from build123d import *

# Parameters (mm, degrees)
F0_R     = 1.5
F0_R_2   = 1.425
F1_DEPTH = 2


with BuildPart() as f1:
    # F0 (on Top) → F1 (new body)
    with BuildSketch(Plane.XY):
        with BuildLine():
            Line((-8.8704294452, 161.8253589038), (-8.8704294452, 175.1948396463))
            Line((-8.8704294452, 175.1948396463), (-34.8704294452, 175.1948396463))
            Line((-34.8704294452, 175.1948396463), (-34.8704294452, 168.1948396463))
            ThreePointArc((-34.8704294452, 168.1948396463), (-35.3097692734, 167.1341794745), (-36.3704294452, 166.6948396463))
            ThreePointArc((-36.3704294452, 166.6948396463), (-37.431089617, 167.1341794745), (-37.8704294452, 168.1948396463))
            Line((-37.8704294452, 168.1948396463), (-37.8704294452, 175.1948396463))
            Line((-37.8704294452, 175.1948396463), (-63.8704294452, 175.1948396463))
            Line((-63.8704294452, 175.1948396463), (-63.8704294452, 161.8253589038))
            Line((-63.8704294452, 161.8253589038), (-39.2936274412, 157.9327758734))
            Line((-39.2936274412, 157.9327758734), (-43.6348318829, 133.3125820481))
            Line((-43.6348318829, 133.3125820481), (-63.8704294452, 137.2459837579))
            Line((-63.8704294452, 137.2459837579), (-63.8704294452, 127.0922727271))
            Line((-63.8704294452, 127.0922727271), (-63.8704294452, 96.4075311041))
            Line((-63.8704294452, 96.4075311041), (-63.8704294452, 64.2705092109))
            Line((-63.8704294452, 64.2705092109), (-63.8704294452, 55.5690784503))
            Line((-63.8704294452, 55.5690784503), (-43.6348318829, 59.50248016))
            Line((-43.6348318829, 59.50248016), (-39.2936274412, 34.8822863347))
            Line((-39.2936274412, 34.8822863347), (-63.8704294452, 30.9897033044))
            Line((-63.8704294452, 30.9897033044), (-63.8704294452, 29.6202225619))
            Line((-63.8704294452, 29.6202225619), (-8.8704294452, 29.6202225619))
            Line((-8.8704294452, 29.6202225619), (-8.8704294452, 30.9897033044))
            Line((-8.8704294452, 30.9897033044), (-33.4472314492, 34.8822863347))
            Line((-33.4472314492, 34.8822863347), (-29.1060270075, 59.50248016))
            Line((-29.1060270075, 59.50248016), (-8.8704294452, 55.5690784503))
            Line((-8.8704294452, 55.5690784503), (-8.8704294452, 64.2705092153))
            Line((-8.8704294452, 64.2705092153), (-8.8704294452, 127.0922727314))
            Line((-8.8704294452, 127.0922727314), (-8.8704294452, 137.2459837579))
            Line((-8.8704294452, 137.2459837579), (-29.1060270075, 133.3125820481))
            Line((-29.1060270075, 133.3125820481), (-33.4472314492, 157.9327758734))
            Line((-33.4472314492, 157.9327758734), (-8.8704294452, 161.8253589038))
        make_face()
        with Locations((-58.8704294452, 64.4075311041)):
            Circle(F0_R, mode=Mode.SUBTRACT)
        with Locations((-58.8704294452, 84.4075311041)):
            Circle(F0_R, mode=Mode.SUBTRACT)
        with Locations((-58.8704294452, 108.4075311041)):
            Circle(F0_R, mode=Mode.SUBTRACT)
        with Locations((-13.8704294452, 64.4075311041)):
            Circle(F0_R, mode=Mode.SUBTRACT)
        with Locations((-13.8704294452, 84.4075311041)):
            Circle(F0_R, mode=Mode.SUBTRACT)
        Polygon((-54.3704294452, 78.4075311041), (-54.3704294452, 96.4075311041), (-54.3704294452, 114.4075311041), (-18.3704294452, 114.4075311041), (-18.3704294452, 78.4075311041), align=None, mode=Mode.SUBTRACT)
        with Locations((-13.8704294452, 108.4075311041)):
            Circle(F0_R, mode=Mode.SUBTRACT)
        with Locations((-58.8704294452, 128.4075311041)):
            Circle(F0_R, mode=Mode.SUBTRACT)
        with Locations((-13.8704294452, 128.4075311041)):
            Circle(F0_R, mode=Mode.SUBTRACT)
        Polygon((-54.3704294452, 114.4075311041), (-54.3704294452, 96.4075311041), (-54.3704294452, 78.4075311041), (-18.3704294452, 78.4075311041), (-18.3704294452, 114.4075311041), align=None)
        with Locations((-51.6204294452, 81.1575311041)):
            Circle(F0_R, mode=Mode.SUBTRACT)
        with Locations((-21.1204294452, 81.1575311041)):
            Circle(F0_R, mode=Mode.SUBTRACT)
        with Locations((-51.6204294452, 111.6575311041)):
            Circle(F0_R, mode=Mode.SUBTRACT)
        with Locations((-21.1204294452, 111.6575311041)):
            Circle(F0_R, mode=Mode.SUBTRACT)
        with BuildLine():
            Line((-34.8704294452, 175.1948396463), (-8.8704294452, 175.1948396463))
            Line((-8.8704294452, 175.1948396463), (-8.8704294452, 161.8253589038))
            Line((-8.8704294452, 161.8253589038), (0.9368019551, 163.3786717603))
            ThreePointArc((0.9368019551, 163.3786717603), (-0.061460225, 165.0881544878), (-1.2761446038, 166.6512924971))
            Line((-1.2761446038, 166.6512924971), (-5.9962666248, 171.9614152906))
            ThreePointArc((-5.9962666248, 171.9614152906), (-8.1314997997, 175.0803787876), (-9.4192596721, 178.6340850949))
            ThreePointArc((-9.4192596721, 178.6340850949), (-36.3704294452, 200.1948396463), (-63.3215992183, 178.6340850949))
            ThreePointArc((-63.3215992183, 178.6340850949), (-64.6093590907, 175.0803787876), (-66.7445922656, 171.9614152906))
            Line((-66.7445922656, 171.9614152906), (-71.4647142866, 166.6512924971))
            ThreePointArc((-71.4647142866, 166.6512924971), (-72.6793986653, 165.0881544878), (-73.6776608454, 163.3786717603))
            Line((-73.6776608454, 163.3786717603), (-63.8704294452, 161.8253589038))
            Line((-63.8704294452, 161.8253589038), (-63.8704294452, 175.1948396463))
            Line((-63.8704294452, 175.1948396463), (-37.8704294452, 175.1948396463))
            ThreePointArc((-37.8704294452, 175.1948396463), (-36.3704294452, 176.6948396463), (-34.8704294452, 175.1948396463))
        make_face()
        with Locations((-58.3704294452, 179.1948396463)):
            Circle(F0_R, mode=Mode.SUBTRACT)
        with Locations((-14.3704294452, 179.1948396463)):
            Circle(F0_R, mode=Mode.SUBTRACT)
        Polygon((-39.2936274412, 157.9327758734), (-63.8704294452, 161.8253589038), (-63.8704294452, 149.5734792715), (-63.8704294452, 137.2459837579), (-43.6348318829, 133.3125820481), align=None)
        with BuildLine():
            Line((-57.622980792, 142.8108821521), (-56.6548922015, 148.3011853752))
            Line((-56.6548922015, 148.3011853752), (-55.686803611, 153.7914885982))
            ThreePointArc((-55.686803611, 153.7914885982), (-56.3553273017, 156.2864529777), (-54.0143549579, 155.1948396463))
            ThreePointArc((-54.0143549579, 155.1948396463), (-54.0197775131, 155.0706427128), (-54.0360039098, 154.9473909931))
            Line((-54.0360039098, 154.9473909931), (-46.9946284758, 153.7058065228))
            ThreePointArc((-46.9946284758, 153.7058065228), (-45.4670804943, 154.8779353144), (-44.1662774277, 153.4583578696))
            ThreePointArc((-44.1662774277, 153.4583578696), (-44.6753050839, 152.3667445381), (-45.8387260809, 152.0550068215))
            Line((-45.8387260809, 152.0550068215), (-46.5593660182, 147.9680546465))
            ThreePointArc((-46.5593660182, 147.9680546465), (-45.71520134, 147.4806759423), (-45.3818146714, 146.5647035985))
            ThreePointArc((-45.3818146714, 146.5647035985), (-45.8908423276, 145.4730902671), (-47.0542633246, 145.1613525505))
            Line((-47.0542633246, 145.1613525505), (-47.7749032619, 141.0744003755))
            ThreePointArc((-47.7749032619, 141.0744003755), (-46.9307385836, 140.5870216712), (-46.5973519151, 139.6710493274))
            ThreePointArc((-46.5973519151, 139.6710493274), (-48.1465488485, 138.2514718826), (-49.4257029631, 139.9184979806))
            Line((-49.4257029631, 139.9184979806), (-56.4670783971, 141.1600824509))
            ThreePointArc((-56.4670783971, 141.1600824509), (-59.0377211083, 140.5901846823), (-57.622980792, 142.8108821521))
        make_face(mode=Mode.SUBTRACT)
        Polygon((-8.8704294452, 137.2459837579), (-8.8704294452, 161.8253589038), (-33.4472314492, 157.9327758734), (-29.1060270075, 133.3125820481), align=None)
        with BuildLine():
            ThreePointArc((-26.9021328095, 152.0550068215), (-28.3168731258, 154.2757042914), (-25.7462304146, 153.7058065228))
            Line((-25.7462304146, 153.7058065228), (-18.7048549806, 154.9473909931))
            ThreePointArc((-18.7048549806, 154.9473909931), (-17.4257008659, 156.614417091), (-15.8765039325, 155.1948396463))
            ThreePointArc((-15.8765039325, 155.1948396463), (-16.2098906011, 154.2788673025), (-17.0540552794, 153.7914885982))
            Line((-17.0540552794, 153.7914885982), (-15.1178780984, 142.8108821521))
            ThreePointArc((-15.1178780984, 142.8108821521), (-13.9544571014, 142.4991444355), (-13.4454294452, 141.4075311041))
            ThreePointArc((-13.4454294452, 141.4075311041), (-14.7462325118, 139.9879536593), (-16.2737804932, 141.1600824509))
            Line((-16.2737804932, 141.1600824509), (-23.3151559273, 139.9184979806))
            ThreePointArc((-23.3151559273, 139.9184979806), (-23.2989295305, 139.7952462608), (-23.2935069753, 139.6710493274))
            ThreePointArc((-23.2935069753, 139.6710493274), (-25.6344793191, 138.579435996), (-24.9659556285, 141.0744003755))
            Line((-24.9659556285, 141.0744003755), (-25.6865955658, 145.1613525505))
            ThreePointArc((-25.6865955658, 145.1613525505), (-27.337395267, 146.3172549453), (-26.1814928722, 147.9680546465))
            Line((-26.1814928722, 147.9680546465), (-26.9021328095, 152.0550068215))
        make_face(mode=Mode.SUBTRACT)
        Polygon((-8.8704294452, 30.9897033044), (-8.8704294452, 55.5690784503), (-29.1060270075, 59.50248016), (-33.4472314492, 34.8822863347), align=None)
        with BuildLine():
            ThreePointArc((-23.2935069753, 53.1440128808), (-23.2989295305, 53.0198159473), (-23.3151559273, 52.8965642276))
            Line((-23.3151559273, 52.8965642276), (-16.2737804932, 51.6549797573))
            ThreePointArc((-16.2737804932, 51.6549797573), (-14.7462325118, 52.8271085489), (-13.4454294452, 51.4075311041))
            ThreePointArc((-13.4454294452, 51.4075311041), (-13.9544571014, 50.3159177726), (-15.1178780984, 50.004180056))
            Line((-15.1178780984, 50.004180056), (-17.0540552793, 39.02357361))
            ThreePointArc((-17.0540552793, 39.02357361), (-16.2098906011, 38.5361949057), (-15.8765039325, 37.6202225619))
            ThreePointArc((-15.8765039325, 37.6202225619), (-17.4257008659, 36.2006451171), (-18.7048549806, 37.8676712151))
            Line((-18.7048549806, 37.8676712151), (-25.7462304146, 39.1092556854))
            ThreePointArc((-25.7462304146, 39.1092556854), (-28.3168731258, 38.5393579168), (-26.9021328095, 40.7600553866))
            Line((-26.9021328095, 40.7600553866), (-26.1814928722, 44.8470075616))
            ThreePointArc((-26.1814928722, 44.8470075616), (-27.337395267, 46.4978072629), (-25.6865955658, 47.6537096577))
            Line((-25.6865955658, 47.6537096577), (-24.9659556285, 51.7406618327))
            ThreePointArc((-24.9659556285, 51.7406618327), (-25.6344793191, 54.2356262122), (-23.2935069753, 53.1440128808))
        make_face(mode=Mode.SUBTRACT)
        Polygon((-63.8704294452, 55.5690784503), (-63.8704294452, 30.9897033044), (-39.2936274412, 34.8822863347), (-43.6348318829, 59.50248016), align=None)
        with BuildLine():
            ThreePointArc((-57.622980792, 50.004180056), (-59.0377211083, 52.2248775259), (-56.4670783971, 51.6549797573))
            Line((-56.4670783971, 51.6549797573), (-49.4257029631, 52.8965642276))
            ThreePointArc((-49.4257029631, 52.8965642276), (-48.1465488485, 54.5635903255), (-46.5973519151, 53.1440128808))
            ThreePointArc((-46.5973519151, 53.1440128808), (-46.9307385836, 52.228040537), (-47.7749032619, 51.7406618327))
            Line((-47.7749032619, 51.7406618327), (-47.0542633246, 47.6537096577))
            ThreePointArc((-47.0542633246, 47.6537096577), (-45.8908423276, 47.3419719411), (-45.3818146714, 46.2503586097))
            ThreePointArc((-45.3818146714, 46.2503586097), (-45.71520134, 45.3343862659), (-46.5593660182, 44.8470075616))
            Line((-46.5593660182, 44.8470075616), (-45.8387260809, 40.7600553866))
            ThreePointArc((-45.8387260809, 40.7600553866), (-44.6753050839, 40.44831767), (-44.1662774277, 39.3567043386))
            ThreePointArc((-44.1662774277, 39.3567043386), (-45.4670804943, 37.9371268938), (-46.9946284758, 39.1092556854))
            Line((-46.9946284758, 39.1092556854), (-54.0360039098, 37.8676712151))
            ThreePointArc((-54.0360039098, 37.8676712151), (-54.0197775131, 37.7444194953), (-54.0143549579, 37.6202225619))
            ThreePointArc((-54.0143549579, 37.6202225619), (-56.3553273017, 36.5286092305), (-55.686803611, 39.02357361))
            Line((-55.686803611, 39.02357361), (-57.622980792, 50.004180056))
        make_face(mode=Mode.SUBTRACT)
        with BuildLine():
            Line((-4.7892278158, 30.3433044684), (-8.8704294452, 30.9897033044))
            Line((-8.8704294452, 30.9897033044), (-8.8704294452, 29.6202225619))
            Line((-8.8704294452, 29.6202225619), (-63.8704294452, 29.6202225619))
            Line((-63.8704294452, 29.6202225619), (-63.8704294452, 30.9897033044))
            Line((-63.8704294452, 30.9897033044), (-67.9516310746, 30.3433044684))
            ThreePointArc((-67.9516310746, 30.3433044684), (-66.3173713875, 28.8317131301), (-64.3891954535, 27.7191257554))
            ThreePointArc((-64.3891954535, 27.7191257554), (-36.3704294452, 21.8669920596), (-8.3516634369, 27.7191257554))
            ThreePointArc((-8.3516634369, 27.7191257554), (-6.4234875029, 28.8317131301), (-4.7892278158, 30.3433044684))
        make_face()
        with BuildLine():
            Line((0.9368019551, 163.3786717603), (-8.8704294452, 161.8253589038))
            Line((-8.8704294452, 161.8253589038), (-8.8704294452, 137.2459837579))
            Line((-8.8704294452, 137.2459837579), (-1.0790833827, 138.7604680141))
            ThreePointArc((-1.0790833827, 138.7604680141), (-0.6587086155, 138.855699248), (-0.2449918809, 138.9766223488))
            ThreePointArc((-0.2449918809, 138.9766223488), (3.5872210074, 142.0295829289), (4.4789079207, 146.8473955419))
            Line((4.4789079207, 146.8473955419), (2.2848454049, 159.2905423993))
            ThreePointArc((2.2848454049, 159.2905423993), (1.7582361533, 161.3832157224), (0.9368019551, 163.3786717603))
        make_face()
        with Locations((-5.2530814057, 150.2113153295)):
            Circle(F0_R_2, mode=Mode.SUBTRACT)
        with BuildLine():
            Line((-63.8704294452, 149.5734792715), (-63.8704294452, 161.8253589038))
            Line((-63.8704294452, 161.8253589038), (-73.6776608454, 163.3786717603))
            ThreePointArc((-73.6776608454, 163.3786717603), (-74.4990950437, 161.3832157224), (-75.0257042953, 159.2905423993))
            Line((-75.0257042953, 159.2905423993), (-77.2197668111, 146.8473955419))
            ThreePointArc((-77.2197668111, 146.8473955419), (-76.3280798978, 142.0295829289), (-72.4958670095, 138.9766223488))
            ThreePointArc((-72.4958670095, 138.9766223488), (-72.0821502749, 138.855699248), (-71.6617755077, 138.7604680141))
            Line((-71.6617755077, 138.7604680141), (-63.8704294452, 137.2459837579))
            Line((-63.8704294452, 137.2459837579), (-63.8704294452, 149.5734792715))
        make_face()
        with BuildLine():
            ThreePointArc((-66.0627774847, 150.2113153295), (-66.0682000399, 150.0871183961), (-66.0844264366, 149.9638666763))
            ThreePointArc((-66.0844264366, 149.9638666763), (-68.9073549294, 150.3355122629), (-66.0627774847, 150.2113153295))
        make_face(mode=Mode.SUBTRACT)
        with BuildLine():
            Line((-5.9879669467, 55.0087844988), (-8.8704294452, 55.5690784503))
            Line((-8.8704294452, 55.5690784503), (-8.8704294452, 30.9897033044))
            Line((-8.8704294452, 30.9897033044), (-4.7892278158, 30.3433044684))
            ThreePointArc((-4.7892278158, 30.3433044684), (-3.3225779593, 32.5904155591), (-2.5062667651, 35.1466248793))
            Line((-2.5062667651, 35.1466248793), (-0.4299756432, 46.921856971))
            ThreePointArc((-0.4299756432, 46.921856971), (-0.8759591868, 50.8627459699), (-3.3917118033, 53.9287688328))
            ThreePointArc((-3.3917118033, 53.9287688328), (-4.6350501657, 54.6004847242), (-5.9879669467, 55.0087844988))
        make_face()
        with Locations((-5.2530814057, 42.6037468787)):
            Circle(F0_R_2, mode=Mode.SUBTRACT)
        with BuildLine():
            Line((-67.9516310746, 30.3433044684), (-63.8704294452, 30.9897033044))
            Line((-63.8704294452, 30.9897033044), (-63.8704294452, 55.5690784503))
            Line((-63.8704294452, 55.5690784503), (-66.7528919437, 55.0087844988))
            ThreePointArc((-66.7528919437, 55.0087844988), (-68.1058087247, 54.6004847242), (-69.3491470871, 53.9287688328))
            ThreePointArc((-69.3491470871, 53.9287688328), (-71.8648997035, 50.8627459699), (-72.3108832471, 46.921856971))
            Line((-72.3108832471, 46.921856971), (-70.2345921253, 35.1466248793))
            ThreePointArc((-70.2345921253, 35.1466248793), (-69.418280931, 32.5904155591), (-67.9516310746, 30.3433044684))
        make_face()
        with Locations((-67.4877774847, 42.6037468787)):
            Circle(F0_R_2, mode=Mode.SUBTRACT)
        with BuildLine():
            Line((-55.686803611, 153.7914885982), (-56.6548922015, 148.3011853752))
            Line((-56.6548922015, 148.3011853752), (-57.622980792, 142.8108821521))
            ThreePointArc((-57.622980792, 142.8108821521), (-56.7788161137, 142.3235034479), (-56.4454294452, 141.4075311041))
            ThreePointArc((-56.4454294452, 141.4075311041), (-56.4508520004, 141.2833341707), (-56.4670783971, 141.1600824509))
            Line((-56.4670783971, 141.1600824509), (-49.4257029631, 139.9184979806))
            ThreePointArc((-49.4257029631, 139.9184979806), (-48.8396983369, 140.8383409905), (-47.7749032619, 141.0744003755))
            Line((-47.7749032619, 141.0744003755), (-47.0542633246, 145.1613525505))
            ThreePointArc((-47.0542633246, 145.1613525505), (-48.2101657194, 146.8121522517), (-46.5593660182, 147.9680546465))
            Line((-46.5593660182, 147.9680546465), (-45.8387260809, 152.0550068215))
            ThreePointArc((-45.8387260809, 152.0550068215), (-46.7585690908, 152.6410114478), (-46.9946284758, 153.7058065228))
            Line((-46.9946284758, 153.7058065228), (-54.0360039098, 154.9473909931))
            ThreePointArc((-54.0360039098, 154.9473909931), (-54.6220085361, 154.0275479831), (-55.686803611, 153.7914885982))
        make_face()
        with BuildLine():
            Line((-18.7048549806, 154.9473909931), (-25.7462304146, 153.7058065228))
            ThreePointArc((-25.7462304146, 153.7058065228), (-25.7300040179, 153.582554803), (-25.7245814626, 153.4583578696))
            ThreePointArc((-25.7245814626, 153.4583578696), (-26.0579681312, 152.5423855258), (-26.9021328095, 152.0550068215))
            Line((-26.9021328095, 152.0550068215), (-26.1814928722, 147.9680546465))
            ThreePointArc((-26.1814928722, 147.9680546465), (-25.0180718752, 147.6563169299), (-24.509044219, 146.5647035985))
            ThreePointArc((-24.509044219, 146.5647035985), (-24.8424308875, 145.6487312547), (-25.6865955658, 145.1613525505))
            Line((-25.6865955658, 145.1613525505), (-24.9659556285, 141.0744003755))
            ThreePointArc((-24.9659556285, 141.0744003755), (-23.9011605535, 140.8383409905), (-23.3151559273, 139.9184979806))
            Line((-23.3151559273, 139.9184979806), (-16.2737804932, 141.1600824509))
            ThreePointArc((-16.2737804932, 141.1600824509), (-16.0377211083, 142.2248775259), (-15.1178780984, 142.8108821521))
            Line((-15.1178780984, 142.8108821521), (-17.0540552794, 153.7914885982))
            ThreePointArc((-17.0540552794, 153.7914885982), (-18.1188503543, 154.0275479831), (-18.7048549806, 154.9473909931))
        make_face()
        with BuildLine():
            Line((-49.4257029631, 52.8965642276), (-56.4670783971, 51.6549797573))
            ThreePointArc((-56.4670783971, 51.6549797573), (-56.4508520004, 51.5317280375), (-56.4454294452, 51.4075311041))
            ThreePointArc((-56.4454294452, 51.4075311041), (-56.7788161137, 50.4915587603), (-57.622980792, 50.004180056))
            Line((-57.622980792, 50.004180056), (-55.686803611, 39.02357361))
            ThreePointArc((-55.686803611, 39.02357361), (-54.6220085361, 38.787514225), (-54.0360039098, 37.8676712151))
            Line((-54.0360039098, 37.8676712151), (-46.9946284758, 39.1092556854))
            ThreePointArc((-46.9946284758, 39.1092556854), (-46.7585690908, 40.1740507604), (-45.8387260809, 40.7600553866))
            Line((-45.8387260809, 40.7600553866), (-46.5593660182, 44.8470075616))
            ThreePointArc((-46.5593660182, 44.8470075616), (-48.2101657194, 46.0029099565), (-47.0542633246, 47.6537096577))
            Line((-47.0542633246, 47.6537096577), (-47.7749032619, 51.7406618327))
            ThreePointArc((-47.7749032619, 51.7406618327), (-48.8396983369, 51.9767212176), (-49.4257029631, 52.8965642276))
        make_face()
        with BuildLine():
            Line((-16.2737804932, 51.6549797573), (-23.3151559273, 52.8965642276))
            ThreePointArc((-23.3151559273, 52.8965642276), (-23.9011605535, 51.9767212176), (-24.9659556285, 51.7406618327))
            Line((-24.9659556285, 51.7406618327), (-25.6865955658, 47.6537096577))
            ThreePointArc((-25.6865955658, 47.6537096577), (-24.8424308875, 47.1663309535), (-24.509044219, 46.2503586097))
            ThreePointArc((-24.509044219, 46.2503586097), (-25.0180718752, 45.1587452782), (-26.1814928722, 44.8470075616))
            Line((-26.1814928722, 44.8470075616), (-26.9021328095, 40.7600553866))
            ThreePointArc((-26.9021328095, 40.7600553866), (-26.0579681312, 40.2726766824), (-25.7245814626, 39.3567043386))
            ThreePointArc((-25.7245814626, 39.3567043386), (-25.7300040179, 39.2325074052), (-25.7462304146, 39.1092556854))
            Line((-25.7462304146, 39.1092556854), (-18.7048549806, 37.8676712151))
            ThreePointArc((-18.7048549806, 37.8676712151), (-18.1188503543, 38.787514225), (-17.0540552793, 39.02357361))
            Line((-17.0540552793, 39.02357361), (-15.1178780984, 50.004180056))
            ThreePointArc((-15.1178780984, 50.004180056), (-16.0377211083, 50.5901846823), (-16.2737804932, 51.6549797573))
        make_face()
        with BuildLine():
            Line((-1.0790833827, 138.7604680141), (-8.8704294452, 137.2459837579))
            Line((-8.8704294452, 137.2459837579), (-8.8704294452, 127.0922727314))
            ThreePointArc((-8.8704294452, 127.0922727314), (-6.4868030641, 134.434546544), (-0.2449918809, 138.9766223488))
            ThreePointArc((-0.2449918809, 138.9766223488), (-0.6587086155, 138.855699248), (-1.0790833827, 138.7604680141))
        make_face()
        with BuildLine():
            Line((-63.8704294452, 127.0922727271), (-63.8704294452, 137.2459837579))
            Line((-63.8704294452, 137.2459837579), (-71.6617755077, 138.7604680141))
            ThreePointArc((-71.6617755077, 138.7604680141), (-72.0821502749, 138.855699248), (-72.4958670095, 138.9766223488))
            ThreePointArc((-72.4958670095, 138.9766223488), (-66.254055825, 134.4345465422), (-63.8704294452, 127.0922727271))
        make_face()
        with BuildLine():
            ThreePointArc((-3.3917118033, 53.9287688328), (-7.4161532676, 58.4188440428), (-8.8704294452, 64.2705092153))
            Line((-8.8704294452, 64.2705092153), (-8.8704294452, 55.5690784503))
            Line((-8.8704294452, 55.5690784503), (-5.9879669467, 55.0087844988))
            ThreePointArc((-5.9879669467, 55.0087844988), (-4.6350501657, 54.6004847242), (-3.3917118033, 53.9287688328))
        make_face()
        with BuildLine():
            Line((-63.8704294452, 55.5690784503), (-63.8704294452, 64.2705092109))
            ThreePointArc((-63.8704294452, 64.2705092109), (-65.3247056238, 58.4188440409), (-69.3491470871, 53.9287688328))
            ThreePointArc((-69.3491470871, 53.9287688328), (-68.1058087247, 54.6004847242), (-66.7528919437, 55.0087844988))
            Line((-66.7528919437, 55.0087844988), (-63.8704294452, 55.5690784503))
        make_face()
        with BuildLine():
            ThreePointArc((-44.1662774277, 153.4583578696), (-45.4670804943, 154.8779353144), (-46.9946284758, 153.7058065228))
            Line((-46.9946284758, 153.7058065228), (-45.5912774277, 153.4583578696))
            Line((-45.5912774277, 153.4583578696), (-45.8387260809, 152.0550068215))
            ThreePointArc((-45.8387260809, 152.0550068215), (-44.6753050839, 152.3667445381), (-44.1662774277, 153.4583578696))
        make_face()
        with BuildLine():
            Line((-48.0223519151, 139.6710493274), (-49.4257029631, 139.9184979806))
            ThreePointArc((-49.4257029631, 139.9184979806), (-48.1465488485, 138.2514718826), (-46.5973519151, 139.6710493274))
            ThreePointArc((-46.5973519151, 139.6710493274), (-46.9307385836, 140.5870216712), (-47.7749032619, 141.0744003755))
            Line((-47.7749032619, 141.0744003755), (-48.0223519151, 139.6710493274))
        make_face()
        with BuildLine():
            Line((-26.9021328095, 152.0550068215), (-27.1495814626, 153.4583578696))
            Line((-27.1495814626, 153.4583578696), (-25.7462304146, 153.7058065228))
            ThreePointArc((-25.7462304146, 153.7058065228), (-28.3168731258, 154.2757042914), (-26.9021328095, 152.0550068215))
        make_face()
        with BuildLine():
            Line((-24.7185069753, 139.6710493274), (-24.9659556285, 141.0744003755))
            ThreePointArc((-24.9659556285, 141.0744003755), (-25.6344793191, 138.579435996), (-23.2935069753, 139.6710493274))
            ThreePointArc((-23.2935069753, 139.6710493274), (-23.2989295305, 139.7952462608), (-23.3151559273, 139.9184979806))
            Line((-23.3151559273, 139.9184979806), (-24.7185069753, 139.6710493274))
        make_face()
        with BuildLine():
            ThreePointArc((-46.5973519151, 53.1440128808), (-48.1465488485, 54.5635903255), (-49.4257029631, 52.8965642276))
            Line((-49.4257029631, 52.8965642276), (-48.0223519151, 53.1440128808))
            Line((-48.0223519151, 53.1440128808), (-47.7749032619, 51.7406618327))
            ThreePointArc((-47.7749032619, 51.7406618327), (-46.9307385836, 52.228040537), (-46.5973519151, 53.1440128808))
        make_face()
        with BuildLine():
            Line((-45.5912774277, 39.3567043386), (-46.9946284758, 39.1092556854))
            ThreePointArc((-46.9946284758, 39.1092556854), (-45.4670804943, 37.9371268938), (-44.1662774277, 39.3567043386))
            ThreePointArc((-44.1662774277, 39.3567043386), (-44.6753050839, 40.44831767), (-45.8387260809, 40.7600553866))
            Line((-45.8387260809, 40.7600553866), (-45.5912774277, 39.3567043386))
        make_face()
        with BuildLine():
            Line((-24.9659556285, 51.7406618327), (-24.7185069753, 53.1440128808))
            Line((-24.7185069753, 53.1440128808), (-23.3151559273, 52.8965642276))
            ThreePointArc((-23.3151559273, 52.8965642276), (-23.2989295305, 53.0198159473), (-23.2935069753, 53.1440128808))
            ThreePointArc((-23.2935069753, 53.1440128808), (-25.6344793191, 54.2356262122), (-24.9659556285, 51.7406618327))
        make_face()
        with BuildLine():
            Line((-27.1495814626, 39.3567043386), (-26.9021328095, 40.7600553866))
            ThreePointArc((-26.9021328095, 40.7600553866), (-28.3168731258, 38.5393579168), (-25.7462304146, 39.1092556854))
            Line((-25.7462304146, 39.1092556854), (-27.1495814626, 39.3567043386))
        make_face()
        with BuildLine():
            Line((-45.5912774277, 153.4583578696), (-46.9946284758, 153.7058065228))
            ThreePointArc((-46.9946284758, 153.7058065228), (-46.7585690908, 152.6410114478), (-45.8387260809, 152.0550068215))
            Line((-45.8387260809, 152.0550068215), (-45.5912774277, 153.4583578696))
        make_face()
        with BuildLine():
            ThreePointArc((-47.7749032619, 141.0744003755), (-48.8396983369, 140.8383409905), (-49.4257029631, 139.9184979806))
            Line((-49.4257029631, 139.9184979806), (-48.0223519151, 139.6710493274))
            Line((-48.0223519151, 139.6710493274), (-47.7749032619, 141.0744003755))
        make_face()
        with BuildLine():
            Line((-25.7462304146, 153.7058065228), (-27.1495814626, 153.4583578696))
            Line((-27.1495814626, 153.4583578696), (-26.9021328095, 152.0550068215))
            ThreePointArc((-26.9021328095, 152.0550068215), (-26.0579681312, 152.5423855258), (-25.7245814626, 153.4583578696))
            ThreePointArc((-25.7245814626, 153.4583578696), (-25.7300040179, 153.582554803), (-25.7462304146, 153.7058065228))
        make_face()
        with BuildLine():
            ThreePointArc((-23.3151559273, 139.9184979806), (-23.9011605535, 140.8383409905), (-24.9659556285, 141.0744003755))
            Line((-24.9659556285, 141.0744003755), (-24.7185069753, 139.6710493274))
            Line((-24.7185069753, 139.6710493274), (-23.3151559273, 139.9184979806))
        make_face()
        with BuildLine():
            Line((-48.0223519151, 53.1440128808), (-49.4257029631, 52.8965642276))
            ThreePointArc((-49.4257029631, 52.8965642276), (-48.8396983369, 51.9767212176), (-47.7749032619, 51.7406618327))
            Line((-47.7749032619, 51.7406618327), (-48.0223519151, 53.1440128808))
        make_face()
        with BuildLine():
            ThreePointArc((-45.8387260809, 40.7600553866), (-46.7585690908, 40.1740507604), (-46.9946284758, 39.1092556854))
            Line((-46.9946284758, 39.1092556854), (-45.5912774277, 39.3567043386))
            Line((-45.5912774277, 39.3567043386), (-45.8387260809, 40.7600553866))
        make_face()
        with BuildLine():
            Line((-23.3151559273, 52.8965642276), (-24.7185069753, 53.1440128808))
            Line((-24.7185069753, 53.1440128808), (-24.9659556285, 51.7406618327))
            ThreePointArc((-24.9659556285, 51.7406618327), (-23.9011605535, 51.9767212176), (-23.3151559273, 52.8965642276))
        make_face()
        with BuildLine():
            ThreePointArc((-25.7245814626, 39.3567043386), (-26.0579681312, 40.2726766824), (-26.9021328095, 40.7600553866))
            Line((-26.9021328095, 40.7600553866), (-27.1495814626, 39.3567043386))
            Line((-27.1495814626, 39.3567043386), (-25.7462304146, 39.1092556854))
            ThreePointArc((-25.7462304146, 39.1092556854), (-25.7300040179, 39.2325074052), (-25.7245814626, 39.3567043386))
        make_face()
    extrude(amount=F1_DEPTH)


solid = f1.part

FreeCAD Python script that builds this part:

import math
import FreeCAD as App
import Part
import Sketcher
from FreeCAD import Vector
Q = App.Units.Quantity

doc = App.newDocument("Part")
body = doc.addObject("PartDesign::Body", "Body")

sketch1 = body.newObject("Sketcher::SketchObject", "Sketch")
sketch1.AttachmentSupport = (doc.getObject("XY_Plane"), [""])
sketch1.MapMode = "FlatFace"
sketch1.addGeometry([
    Part.ArcOfCircle(Part.Circle(Vector(-12.35, 36.88, 0), Vector(0, 0, 1), 10), math.radians(-66), math.radians(-41)),
    Part.ArcOfCircle(Part.Circle(Vector(-12.35, 36.88, 0), Vector(0, 0, 1), 10), math.radians(-41), math.radians(-10)),
    Part.LineSegment(Vector(-2.51, 35.15, 0), Vector(-0.43, 46.92, 0)),
    Part.ArcOfCircle(Part.Circle(Vector(-7.32, 48.14, 0), Vector(0, 0, 1), 7), math.radians(-10), math.radians(56)),
    Part.ArcOfCircle(Part.Circle(Vector(3.63, 64.27, 0), Vector(0, 0, 1), 12.5), math.radians(180), math.radians(236)),
    Part.LineSegment(Vector(-8.87, 64.27, 0), Vector(-8.87, 127.09, 0)),
    Part.ArcOfCircle(Part.Circle(Vector(3.63, 127.09, 0), Vector(0, 0, 1), 12.5), math.radians(108), math.radians(180)),
    Part.ArcOfCircle(Part.Circle(Vector(-2.41, 145.63, 0), Vector(0, 0, 1), 7), math.radians(-72), math.radians(10)),
    Part.LineSegment(Vector(4.48, 146.85, 0), Vector(2.28, 159.29, 0)),
    Part.ArcOfCircle(Part.Circle(Vector(-12.49, 156.69, 0), Vector(0, 0, 1), 15), math.radians(10), math.radians(26.5)),
    Part.ArcOfCircle(Part.Circle(Vector(-12.49, 156.69, 0), Vector(0, 0, 1), 15), math.radians(26.5), math.radians(41.63)),
    Part.LineSegment(Vector(-1.28, 166.65, 0), Vector(-6, 171.96, 0)),
    Part.ArcOfCircle(Part.Circle(Vector(5.21, 181.93, 0), Vector(0, 0, 1), 15), math.radians(-167), math.radians(-138)),
    Part.ArcOfCircle(Part.Circle(Vector(-36.37, 172.57, 0), Vector(0, 0, 1), 27.62), math.radians(13), math.radians(167)),
    Part.ArcOfCircle(Part.Circle(Vector(-77.96, 181.93, 0), Vector(0, 0, 1), 15), math.radians(-42), math.radians(-13)),
    Part.LineSegment(Vector(-66.74, 171.96, 0), Vector(-71.46, 166.65, 0)),
    Part.ArcOfCircle(Part.Circle(Vector(-60.25, 156.69, 0), Vector(0, 0, 1), 15), math.radians(138.37), math.radians(153.5)),
    Part.ArcOfCircle(Part.Circle(Vector(-60.25, 156.69, 0), Vector(0, 0, 1), 15), math.radians(153.5), math.radians(170)),
    Part.LineSegment(Vector(-75.03, 159.29, 0), Vector(-77.22, 146.85, 0)),
    Part.ArcOfCircle(Part.Circle(Vector(-70.33, 145.63, 0), Vector(0, 0, 1), 7), math.radians(170), math.radians(252)),
    Part.ArcOfCircle(Part.Circle(Vector(-76.37, 127.09, 0), Vector(0, 0, 1), 12.5), math.radians(0), math.radians(72)),
    Part.LineSegment(Vector(-63.87, 127.09, 0), Vector(-63.87, 64.27, 0)),
    Part.ArcOfCircle(Part.Circle(Vector(-76.37, 64.27, 0), Vector(0, 0, 1), 12.5), math.radians(-56), math.radians(0)),
    Part.ArcOfCircle(Part.Circle(Vector(-65.42, 48.14, 0), Vector(0, 0, 1), 7), math.radians(124), math.radians(190)),
    Part.LineSegment(Vector(-72.31, 46.92, 0), Vector(-70.23, 35.15, 0)),
    Part.ArcOfCircle(Part.Circle(Vector(-60.39, 36.88, 0), Vector(0, 0, 1), 10), math.radians(-170), math.radians(-139)),
    Part.ArcOfCircle(Part.Circle(Vector(-60.39, 36.88, 0), Vector(0, 0, 1), 10), math.radians(-139), math.radians(-114)),
    Part.ArcOfCircle(Part.Circle(Vector(-36.37, 91.87, 0), Vector(0, 0, 1), 70), math.radians(-114), math.radians(-66)),
    Part.Circle(Vector(-67.49, 42.6, 0), Vector(0, 0, 1), 1.43),
    Part.Circle(Vector(-58.87, 64.41, 0), Vector(0, 0, 1), 1.5),
    Part.ArcOfCircle(Part.Circle(Vector(-57.87, 51.41, 0), Vector(0, 0, 1), 1.43), math.radians(10), math.radians(280)),
    Part.ArcOfCircle(Part.Circle(Vector(-57.87, 51.41, 0), Vector(0, 0, 1), 1.43), math.radians(0), math.radians(10)),
    Part.ArcOfCircle(Part.Circle(Vector(-57.87, 51.41, 0), Vector(0, 0, 1), 1.43), math.radians(-80), math.radians(0)),
    Part.ArcOfCircle(Part.Circle(Vector(-46.81, 46.25, 0), Vector(0, 0, 1), 1.43), math.radians(0), math.radians(100)),
    Part.ArcOfCircle(Part.Circle(Vector(-46.81, 46.25, 0), Vector(0, 0, 1), 1.43), math.radians(-80), math.radians(0)),
    Part.ArcOfCircle(Part.Circle(Vector(-46.81, 46.25, 0), Vector(0, 0, 1), 1.43), math.radians(100), math.radians(280)),
    Part.ArcOfCircle(Part.Circle(Vector(-55.44, 37.62, 0), Vector(0, 0, 1), 1.43), math.radians(0), math.radians(10)),
    Part.ArcOfCircle(Part.Circle(Vector(-55.44, 37.62, 0), Vector(0, 0, 1), 1.43), math.radians(100), math.radians(360)),
    Part.ArcOfCircle(Part.Circle(Vector(-55.44, 37.62, 0), Vector(0, 0, 1), 1.43), math.radians(10), math.radians(100)),
    Part.Circle(Vector(-58.87, 84.41, 0), Vector(0, 0, 1), 1.5),
    Part.Circle(Vector(-58.87, 108.41, 0), Vector(0, 0, 1), 1.5),
    Part.Circle(Vector(-51.62, 81.16, 0), Vector(0, 0, 1), 1.5),
    Part.ArcOfCircle(Part.Circle(Vector(-14.87, 51.41, 0), Vector(0, 0, 1), 1.43), math.radians(0), math.radians(170)),
    Part.ArcOfCircle(Part.Circle(Vector(-14.87, 51.41, 0), Vector(0, 0, 1), 1.43), math.radians(-100), math.radians(0)),
    Part.ArcOfCircle(Part.Circle(Vector(-14.87, 51.41, 0), Vector(0, 0, 1), 1.43), math.radians(170), math.radians(260)),
    Part.ArcOfCircle(Part.Circle(Vector(-17.3, 37.62, 0), Vector(0, 0, 1), 1.43), math.radians(0), math.radians(80)),
    Part.ArcOfCircle(Part.Circle(Vector(-17.3, 37.62, 0), Vector(0, 0, 1), 1.43), math.radians(170), math.radians(360)),
    Part.ArcOfCircle(Part.Circle(Vector(-17.3, 37.62, 0), Vector(0, 0, 1), 1.43), math.radians(80), math.radians(170)),
    Part.ArcOfCircle(Part.Circle(Vector(-25.93, 46.25, 0), Vector(0, 0, 1), 1.43), math.radians(80), math.radians(260)),
    Part.ArcOfCircle(Part.Circle(Vector(-25.93, 46.25, 0), Vector(0, 0, 1), 1.43), math.radians(0), math.radians(80)),
    Part.ArcOfCircle(Part.Circle(Vector(-25.93, 46.25, 0), Vector(0, 0, 1), 1.43), math.radians(-100), math.radians(0)),
    Part.Circle(Vector(-5.25, 42.6, 0), Vector(0, 0, 1), 1.43),
    Part.Circle(Vector(-13.87, 64.41, 0), Vector(0, 0, 1), 1.5),
    Part.Circle(Vector(-21.12, 81.16, 0), Vector(0, 0, 1), 1.5),
    Part.Circle(Vector(-13.87, 84.41, 0), Vector(0, 0, 1), 1.5),
    Part.Circle(Vector(-13.87, 108.41, 0), Vector(0, 0, 1), 1.5),
    Part.Circle(Vector(-58.87, 128.41, 0), Vector(0, 0, 1), 1.5),
    Part.Circle(Vector(-51.62, 111.66, 0), Vector(0, 0, 1), 1.5),
    Part.ArcOfCircle(Part.Circle(Vector(-67.49, 150.21, 0), Vector(0, 0, 1), 1.43), math.radians(0), math.radians(350)),
    Part.ArcOfCircle(Part.Circle(Vector(-67.49, 150.21, 0), Vector(0, 0, 1), 1.43), math.radians(-10), math.radians(0)),
    Part.Circle(Vector(-58.37, 179.19, 0), Vector(0, 0, 1), 1.5),
    Part.ArcOfCircle(Part.Circle(Vector(-57.87, 141.41, 0), Vector(0, 0, 1), 1.43), math.radians(80), math.radians(350)),
    Part.ArcOfCircle(Part.Circle(Vector(-57.87, 141.41, 0), Vector(0, 0, 1), 1.43), math.radians(0), math.radians(80)),
    Part.ArcOfCircle(Part.Circle(Vector(-57.87, 141.41, 0), Vector(0, 0, 1), 1.43), math.radians(-10), math.radians(0)),
    Part.ArcOfCircle(Part.Circle(Vector(-55.44, 155.19, 0), Vector(0, 0, 1), 1.43), math.radians(0), math.radians(260)),
    Part.ArcOfCircle(Part.Circle(Vector(-55.44, 155.19, 0), Vector(0, 0, 1), 1.43), math.radians(-10), math.radians(0)),
    Part.ArcOfCircle(Part.Circle(Vector(-55.44, 155.19, 0), Vector(0, 0, 1), 1.43), math.radians(-100), math.radians(-10)),
    Part.ArcOfCircle(Part.Circle(Vector(-46.81, 146.56, 0), Vector(0, 0, 1), 1.43), math.radians(-100), math.radians(0)),
    Part.ArcOfCircle(Part.Circle(Vector(-46.81, 146.56, 0), Vector(0, 0, 1), 1.43), math.radians(80), math.radians(260)),
    Part.ArcOfCircle(Part.Circle(Vector(-46.81, 146.56, 0), Vector(0, 0, 1), 1.43), math.radians(0), math.radians(80)),
    Part.Circle(Vector(-21.12, 111.66, 0), Vector(0, 0, 1), 1.5),
    Part.Circle(Vector(-13.87, 128.41, 0), Vector(0, 0, 1), 1.5),
    Part.ArcOfCircle(Part.Circle(Vector(-17.3, 155.19, 0), Vector(0, 0, 1), 1.43), math.radians(0), math.radians(190)),
    Part.ArcOfCircle(Part.Circle(Vector(-17.3, 155.19, 0), Vector(0, 0, 1), 1.43), math.radians(-80), math.radians(0)),
    Part.ArcOfCircle(Part.Circle(Vector(-17.3, 155.19, 0), Vector(0, 0, 1), 1.43), math.radians(-170), math.radians(-80)),
    Part.ArcOfCircle(Part.Circle(Vector(-14.87, 141.41, 0), Vector(0, 0, 1), 1.43), math.radians(0), math.radians(100)),
    Part.ArcOfCircle(Part.Circle(Vector(-14.87, 141.41, 0), Vector(0, 0, 1), 1.43), math.radians(-170), math.radians(0)),
    Part.ArcOfCircle(Part.Circle(Vector(-14.87, 141.41, 0), Vector(0, 0, 1), 1.43), math.radians(100), math.radians(190)),
    Part.ArcOfCircle(Part.Circle(Vector(-25.93, 146.56, 0), Vector(0, 0, 1), 1.43), math.radians(100), math.radians(280)),
    Part.ArcOfCircle(Part.Circle(Vector(-25.93, 146.56, 0), Vector(0, 0, 1), 1.43), math.radians(0), math.radians(100)),
    Part.ArcOfCircle(Part.Circle(Vector(-25.93, 146.56, 0), Vector(0, 0, 1), 1.43), math.radians(-80), math.radians(0)),
    Part.LineSegment(Vector(-34.87, 175.19, 0), Vector(-34.87, 168.19, 0)),
    Part.ArcOfCircle(Part.Circle(Vector(-36.37, 168.19, 0), Vector(0, 0, 1), 1.5), math.radians(-90), math.radians(0)),
    Part.ArcOfCircle(Part.Circle(Vector(-36.37, 168.19, 0), Vector(0, 0, 1), 1.5), math.radians(180), math.radians(270)),
    Part.LineSegment(Vector(-37.87, 168.19, 0), Vector(-37.87, 175.19, 0)),
    Part.ArcOfCircle(Part.Circle(Vector(-36.37, 175.19, 0), Vector(0, 0, 1), 1.5), math.radians(0), math.radians(180)),
    Part.Circle(Vector(-5.25, 150.21, 0), Vector(0, 0, 1), 1.43),
    Part.Circle(Vector(-14.37, 179.19, 0), Vector(0, 0, 1), 1.5),
], False)
sketch1.addConstraint([
    Sketcher.Constraint("Tangent", 0, 2, 1, 1),
    Sketcher.Constraint("Tangent", 1, 2, 2, 1),
    Sketcher.Constraint("Tangent", 2, 2, 3, 1),
    Sketcher.Constraint("Tangent", 3, 2, 4, 2),
    Sketcher.Constraint("Tangent", 4, 1, 5, 1),
    Sketcher.Constraint("Tangent", 5, 2, 6, 2),
    Sketcher.Constraint("Tangent", 6, 1, 7, 1),
    Sketcher.Constraint("Tangent", 7, 2, 8, 1),
    Sketcher.Constraint("Tangent", 8, 2, 9, 1),
    Sketcher.Constraint("Tangent", 9, 2, 10, 1),
    Sketcher.Constraint("Tangent", 10, 2, 11, 1),
    Sketcher.Constraint("Tangent", 11, 2, 12, 2),
    Sketcher.Constraint("Tangent", 12, 1, 13, 1),
    Sketcher.Constraint("Tangent", 13, 2, 14, 2),
    Sketcher.Constraint("Tangent", 14, 1, 15, 1),
    Sketcher.Constraint("Tangent", 15, 2, 16, 1),
    Sketcher.Constraint("Tangent", 16, 2, 17, 1),
    Sketcher.Constraint("Tangent", 17, 2, 18, 1),
    Sketcher.Constraint("Tangent", 18, 2, 19, 1),
    Sketcher.Constraint("Tangent", 19, 2, 20, 2),
    Sketcher.Constraint("Tangent", 20, 1, 21, 1),
    Sketcher.Constraint("Tangent", 21, 2, 22, 2),
    Sketcher.Constraint("Tangent", 22, 1, 23, 1),
    Sketcher.Constraint("Tangent", 23, 2, 24, 1),
    Sketcher.Constraint("Tangent", 24, 2, 25, 1),
    Sketcher.Constraint("Tangent", 25, 2, 26, 1),
    Sketcher.Constraint("Tangent", 26, 2, 27, 1),
    Sketcher.Constraint("Tangent", 27, 2, 0, 1),
    Sketcher.Constraint("Tangent", 30, 1, 31, 2),
    Sketcher.Constraint("Tangent", 31, 1, 32, 2),
    Sketcher.Constraint("Tangent", 32, 1, 30, 2),
    Sketcher.Constraint("Tangent", 33, 1, 34, 2),
    Sketcher.Constraint("Tangent", 34, 1, 35, 2),
    Sketcher.Constraint("Tangent", 35, 1, 33, 2),
    Sketcher.Constraint("Tangent", 36, 1, 37, 2),
    Sketcher.Constraint("Tangent", 37, 1, 38, 2),
    Sketcher.Constraint("Tangent", 38, 1, 36, 2),
    Sketcher.Constraint("Tangent", 42, 1, 43, 2),
    Sketcher.Constraint("Tangent", 43, 1, 44, 2),
    Sketcher.Constraint("Tangent", 44, 1, 42, 2),
    Sketcher.Constraint("Tangent", 45, 1, 46, 2),
    Sketcher.Constraint("Tangent", 46, 1, 47, 2),
    Sketcher.Constraint("Tangent", 47, 1, 45, 2),
    Sketcher.Constraint("Tangent", 48, 1, 49, 2),
    Sketcher.Constraint("Tangent", 49, 1, 50, 2),
    Sketcher.Constraint("Tangent", 50, 1, 48, 2),
    Sketcher.Constraint("Tangent", 58, 1, 59, 2),
    Sketcher.Constraint("Coincident", 59, 1, 58, 2),
    Sketcher.Constraint("Tangent", 61, 1, 62, 2),
    Sketcher.Constraint("Tangent", 62, 1, 63, 2),
    Sketcher.Constraint("Tangent", 63, 1, 61, 2),
    Sketcher.Constraint("Tangent", 64, 1, 65, 2),
    Sketcher.Constraint("Tangent", 65, 1, 66, 2),
    Sketcher.Constraint("Tangent", 66, 1, 64, 2),
    Sketcher.Constraint("Tangent", 67, 1, 68, 2),
    Sketcher.Constraint("Tangent", 68, 1, 69, 2),
    Sketcher.Constraint("Tangent", 69, 1, 67, 2),
    Sketcher.Constraint("Tangent", 72, 1, 73, 2),
    Sketcher.Constraint("Tangent", 73, 1, 74, 2),
    Sketcher.Constraint("Tangent", 74, 1, 72, 2),
    Sketcher.Constraint("Tangent", 75, 1, 76, 2),
    Sketcher.Constraint("Tangent", 76, 1, 77, 2),
    Sketcher.Constraint("Tangent", 77, 1, 75, 2),
    Sketcher.Constraint("Tangent", 78, 1, 79, 2),
    Sketcher.Constraint("Tangent", 79, 1, 80, 2),
    Sketcher.Constraint("Tangent", 80, 1, 78, 2),
    Sketcher.Constraint("Tangent", 81, 2, 82, 2),
    Sketcher.Constraint("Tangent", 82, 1, 83, 2),
    Sketcher.Constraint("Tangent", 83, 1, 84, 1),
    Sketcher.Constraint("Tangent", 84, 2, 85, 2),
    Sketcher.Constraint("Tangent", 85, 1, 81, 1),
    Sketcher.Constraint("Vertical", 5),
    Sketcher.Constraint("Vertical", 21),
    Sketcher.Constraint("Vertical", 81),
    Sketcher.Constraint("Vertical", 84),
    Sketcher.Constraint("Equal", 0, 1),
    Sketcher.Constraint("Equal", 4, 6),
    Sketcher.Constraint("Equal", 3, 7),
    Sketcher.Constraint("Equal", 9, 10),
    Sketcher.Constraint("Equal", 10, 12),
    Sketcher.Constraint("Equal", 12, 14),
    Sketcher.Constraint("Equal", 14, 16),
    Sketcher.Constraint("Equal", 16, 17),
    Sketcher.Constraint("Equal", 7, 19),
    Sketcher.Constraint("Equal", 6, 20),
    Sketcher.Constraint("Equal", 20, 22),
    Sketcher.Constraint("Equal", 19, 23),
    Sketcher.Constraint("Equal", 1, 25),
    Sketcher.Constraint("Equal", 25, 26),
    Sketcher.Constraint("Equal", 28, 30),
    Sketcher.Constraint("Equal", 32, 33),
    Sketcher.Constraint("Equal", 35, 36),
    Sketcher.Constraint("Equal", 29, 39),
    Sketcher.Constraint("Equal", 39, 40),
    Sketcher.Constraint("Equal", 40, 41),
    Sketcher.Constraint("Equal", 38, 42),
    Sketcher.Constraint("Equal", 44, 45),
    Sketcher.Constraint("Equal", 47, 48),
    Sketcher.Constraint("Equal", 50, 51),
    Sketcher.Constraint("Equal", 41, 52),
    Sketcher.Constraint("Equal", 52, 53),
    Sketcher.Constraint("Equal", 53, 54),
    Sketcher.Constraint("Equal", 54, 55),
    Sketcher.Constraint("Equal", 55, 56),
    Sketcher.Constraint("Equal", 56, 57),
    Sketcher.Constraint("Equal", 51, 58),
    Sketcher.Constraint("Equal", 57, 60),
    Sketcher.Constraint("Equal", 59, 61),
    Sketcher.Constraint("Equal", 63, 64),
    Sketcher.Constraint("Equal", 66, 67),
    Sketcher.Constraint("Equal", 60, 70),
    Sketcher.Constraint("Equal", 70, 71),
    Sketcher.Constraint("Equal", 69, 72),
    Sketcher.Constraint("Equal", 74, 75),
    Sketcher.Constraint("Equal", 77, 78),
    Sketcher.Constraint("Equal", 71, 82),
    Sketcher.Constraint("Equal", 82, 83),
    Sketcher.Constraint("Equal", 80, 86),
    Sketcher.Constraint("Equal", 85, 87),
    Sketcher.Constraint("Parallel", 2, 18),
    Sketcher.Constraint("Parallel", 8, 24),
    Sketcher.Constraint("Horizontal", 12, 3, 14, 3),
    Sketcher.Constraint("Horizontal", 10, 3, 16, 3),
    Sketcher.Constraint("Horizontal", 7, 3, 19, 3),
    Sketcher.Constraint("Horizontal", 6, 3, 20, 3),
    Sketcher.Constraint("Horizontal", 4, 3, 22, 3),
    Sketcher.Constraint("Horizontal", 3, 3, 23, 3),
    Sketcher.Constraint("Horizontal", 1, 3, 25, 3),
    Sketcher.Constraint("Horizontal", 32, 3, 42, 3),
    Sketcher.Constraint("Horizontal", 38, 3, 45, 3),
    Sketcher.Constraint("Horizontal", 35, 3, 48, 3),
    Sketcher.Constraint("Horizontal", 28, 3, 51, 3),
    Sketcher.Constraint("Horizontal", 29, 3, 52, 3),
    Sketcher.Constraint("Horizontal", 41, 3, 53, 3),
    Sketcher.Constraint("Horizontal", 39, 3, 54, 3),
    Sketcher.Constraint("Horizontal", 40, 3, 55, 3),
    Sketcher.Constraint("Horizontal", 57, 3, 70, 3),
    Sketcher.Constraint("Horizontal", 56, 3, 71, 3),
    Sketcher.Constraint("Horizontal", 66, 3, 72, 3),
    Sketcher.Constraint("Horizontal", 63, 3, 75, 3),
    Sketcher.Constraint("Horizontal", 69, 3, 78, 3),
    Sketcher.Constraint("Horizontal", 59, 3, 86, 3),
    Sketcher.Constraint("Horizontal", 60, 3, 87, 3),
    Sketcher.Constraint("Horizontal", 11, 2, 14, 1),
    Sketcher.Constraint("Horizontal", 9, 2, 16, 2),
    Sketcher.Constraint("Horizontal", 8, 2, 17, 2),
    Sketcher.Constraint("Horizontal", 0, 2, 25, 2),
    Sketcher.Constraint("Horizontal", 44, 3, 31, 1),
    Sketcher.Constraint("Horizontal", 50, 3, 33, 1),
    Sketcher.Constraint("Horizontal", 47, 3, 36, 1),
    Sketcher.Constraint("Horizontal", 31, 1, 42, 1),
    Sketcher.Constraint("Horizontal", 32, 1, 43, 1),
    Sketcher.Constraint("Horizontal", 30, 1, 44, 1),
    Sketcher.Constraint("Horizontal", 36, 1, 45, 1),
    Sketcher.Constraint("Horizontal", 38, 1, 46, 1),
    Sketcher.Constraint("Horizontal", 37, 1, 47, 1),
    Sketcher.Constraint("Horizontal", 35, 1, 48, 1),
    Sketcher.Constraint("Horizontal", 33, 1, 49, 1),
    Sketcher.Constraint("Horizontal", 34, 1, 50, 1),
    Sketcher.Constraint("Horizontal", 86, 3, 58, 1),
    Sketcher.Constraint("Horizontal", 77, 3, 62, 1),
    Sketcher.Constraint("Horizontal", 74, 3, 64, 1),
    Sketcher.Constraint("Horizontal", 80, 3, 69, 1),
    Sketcher.Constraint("Horizontal", 64, 1, 72, 1),
    Sketcher.Constraint("Horizontal", 66, 1, 73, 1),
    Sketcher.Constraint("Horizontal", 65, 1, 74, 1),
    Sketcher.Constraint("Horizontal", 62, 1, 75, 1),
    Sketcher.Constraint("Horizontal", 63, 1, 76, 1),
    Sketcher.Constraint("Horizontal", 61, 1, 77, 1),
    Sketcher.Constraint("Horizontal", 68, 1, 78, 1),
    Sketcher.Constraint("Horizontal", 69, 1, 79, 1),
    Sketcher.Constraint("Horizontal", 67, 1, 80, 1),
    Sketcher.Constraint("Vertical", 29, 3, 39, 3),
    Sketcher.Constraint("Vertical", 39, 3, 40, 3),
    Sketcher.Constraint("Vertical", 52, 3, 54, 3),
    Sketcher.Constraint("Vertical", 54, 3, 55, 3),
    Sketcher.Constraint("Vertical", 40, 3, 56, 3),
    Sketcher.Constraint("Vertical", 41, 3, 57, 3),
    Sketcher.Constraint("Vertical", 28, 3, 58, 3),
    Sketcher.Constraint("Vertical", 32, 3, 61, 3),
    Sketcher.Constraint("Vertical", 38, 3, 64, 3),
    Sketcher.Constraint("Vertical", 35, 3, 67, 3),
    Sketcher.Constraint("Vertical", 53, 3, 70, 3),
    Sketcher.Constraint("Vertical", 55, 3, 71, 3),
    Sketcher.Constraint("Vertical", 47, 3, 72, 3),
    Sketcher.Constraint("Vertical", 44, 3, 75, 3),
    Sketcher.Constraint("Vertical", 50, 3, 78, 3),
    Sketcher.Constraint("Vertical", 27, 3, 82, 3),
    Sketcher.Constraint("Vertical", 51, 3, 86, 3),
    Sketcher.Constraint("Vertical", 32, 1, 61, 1),
    Sketcher.Constraint("Vertical", 30, 1, 63, 1),
    Sketcher.Constraint("Vertical", 38, 1, 65, 1),
    Sketcher.Constraint("Vertical", 37, 1, 66, 1),
    Sketcher.Constraint("Vertical", 35, 1, 67, 1),
    Sketcher.Constraint("Vertical", 34, 1, 68, 1),
    Sketcher.Constraint("Vertical", 85, 3, 82, 1),
    Sketcher.Constraint("Diameter", 29, Q("3 mm")),
    Sketcher.Constraint("Radius", 0, Q("10 mm")),
    Sketcher.Constraint("Radius", 3, Q("7 mm")),
    Sketcher.Constraint("Radius", 9, Q("15 mm")),
    Sketcher.Constraint("Radius", 27, Q("70 mm")),
    Sketcher.Constraint("Radius", 4, Q("12.5 mm")),
    Sketcher.Constraint("Diameter", 28, Q("2.85 mm")),
    Sketcher.Constraint("DistanceY", 81, 2, 81, 1, Q("7 mm")),
    Sketcher.Constraint("Angle", 2, Q("80 deg")),
    Sketcher.Constraint("Radius", 13, Q("27.625 mm")),
    Sketcher.Constraint("DistanceX", -1, 1, 9, 2, Q("0.936802 mm")),
    Sketcher.Constraint("DistanceX", 13, 2, -1, 1, Q("63.321599 mm")),
    Sketcher.Constraint("DistanceY", 5, 1, 5, 2, Q("62.821764 mm")),
    Sketcher.Constraint("DistanceX", 3, 3, -1, 1, Q("7.32363 mm")),
    Sketcher.Constraint("DistanceX", -1, 1, 4, 3, Q("3.629571 mm")),
    Sketcher.Constraint("DistanceY", -1, 1, 4, 3, Q("64.270509 mm")),
    Sketcher.Constraint("DistanceY", -1, 1, 7, 3, Q("145.631858 mm")),
    Sketcher.Constraint("DistanceX", 9, 3, -1, 1, Q("12.487271 mm")),
    Sketcher.Constraint("DistanceX", -1, 1, 12, 3, Q("5.21486 mm")),
    Sketcher.Constraint("DistanceY", -1, 1, 12, 3, Q("181.926888 mm")),
    Sketcher.Constraint("DistanceX", 29, 3, -1, 1, Q("58.870429 mm")),
    Sketcher.Constraint("DistanceY", -1, 1, 29, 3, Q("64.407531 mm")),
    Sketcher.Constraint("DistanceX", 30, 3, -1, 1, Q("57.870429 mm")),
    Sketcher.Constraint("DistanceY", -1, 1, 30, 3, Q("51.407531 mm")),
    Sketcher.Constraint("DistanceY", -1, 1, 33, 3, Q("46.250359 mm")),
    Sketcher.Constraint("DistanceY", -1, 1, 39, 3, Q("84.407531 mm")),
    Sketcher.Constraint("DistanceY", -1, 1, 40, 3, Q("108.407531 mm")),
    Sketcher.Constraint("DistanceX", 41, 3, -1, 1, Q("51.620429 mm")),
    Sketcher.Constraint("DistanceY", -1, 1, 41, 3, Q("81.157531 mm")),
    Sketcher.Constraint("DistanceX", 42, 3, -1, 1, Q("14.870429 mm")),
    Sketcher.Constraint("DistanceX", 51, 3, -1, 1, Q("5.253081 mm")),
    Sketcher.Constraint("DistanceX", 52, 3, -1, 1, Q("13.870429 mm")),
    Sketcher.Constraint("DistanceX", 53, 3, -1, 1, Q("21.120429 mm")),
    Sketcher.Constraint("DistanceY", -1, 1, 56, 3, Q("128.407531 mm")),
    Sketcher.Constraint("DistanceY", -1, 1, 57, 3, Q("111.657531 mm")),
    Sketcher.Constraint("DistanceX", 60, 3, -1, 1, Q("58.370429 mm")),
    Sketcher.Constraint("DistanceY", -1, 1, 60, 3, Q("179.19484 mm")),
    Sketcher.Constraint("DistanceY", -1, 1, 61, 3, Q("141.407531 mm")),
    Sketcher.Constraint("DistanceY", -1, 1, 64, 3, Q("155.19484 mm")),
    Sketcher.Constraint("DistanceY", -1, 1, 82, 3, Q("168.19484 mm")),
    Sketcher.Constraint("DistanceX", 87, 3, -1, 1, Q("14.370429 mm")),
    Sketcher.Constraint("DistanceX", 25, 2, -1, 1, Q("67.951631 mm")),
    Sketcher.Constraint("DistanceX", 30, 1, -1, 1, Q("56.467078 mm")),
    Sketcher.Constraint("DistanceX", 32, 1, -1, 1, Q("57.622981 mm")),
    Sketcher.Constraint("DistanceY", -1, 1, 35, 1, Q("47.65371 mm")),
    Sketcher.Constraint("DistanceY", -1, 1, 38, 1, Q("37.867671 mm")),
    Sketcher.Constraint("DistanceY", -1, 1, 65, 1, Q("154.947391 mm")),
    Sketcher.Constraint("DistanceY", -1, 1, 66, 1, Q("153.791489 mm")),
    Sketcher.Constraint("Distance", 2, Q("11.956884 mm")),
    Sketcher.Constraint("DistanceX", 28, 3, -1, 1, Q("67.487777 mm")),
    Sketcher.Constraint("DistanceY", -1, 1, 28, 3, Q("42.603747 mm")),
    Sketcher.Constraint("DistanceX", 33, 3, -1, 1, Q("46.806815 mm")),
    Sketcher.Constraint("DistanceX", 36, 3, -1, 1, Q("55.439355 mm")),
    Sketcher.Constraint("DistanceX", 45, 3, -1, 1, Q("17.301504 mm")),
    Sketcher.Constraint("DistanceX", 48, 3, -1, 1, Q("25.934044 mm")),
    Sketcher.Constraint("DistanceY", -1, 1, 58, 3, Q("150.211315 mm")),
    Sketcher.Constraint("DistanceY", -1, 1, 67, 3, Q("146.564704 mm")),
    Sketcher.Constraint("DistanceX", 34, 1, -1, 1, Q("46.559366 mm")),
    Sketcher.Constraint("DistanceX", 59, 1, -1, 1, Q("66.084426 mm")),
])
pad1 = body.newObject("PartDesign::Pad", "Pad")
pad1.Profile = sketch1
pad1.Length = 2

doc.recompute()
